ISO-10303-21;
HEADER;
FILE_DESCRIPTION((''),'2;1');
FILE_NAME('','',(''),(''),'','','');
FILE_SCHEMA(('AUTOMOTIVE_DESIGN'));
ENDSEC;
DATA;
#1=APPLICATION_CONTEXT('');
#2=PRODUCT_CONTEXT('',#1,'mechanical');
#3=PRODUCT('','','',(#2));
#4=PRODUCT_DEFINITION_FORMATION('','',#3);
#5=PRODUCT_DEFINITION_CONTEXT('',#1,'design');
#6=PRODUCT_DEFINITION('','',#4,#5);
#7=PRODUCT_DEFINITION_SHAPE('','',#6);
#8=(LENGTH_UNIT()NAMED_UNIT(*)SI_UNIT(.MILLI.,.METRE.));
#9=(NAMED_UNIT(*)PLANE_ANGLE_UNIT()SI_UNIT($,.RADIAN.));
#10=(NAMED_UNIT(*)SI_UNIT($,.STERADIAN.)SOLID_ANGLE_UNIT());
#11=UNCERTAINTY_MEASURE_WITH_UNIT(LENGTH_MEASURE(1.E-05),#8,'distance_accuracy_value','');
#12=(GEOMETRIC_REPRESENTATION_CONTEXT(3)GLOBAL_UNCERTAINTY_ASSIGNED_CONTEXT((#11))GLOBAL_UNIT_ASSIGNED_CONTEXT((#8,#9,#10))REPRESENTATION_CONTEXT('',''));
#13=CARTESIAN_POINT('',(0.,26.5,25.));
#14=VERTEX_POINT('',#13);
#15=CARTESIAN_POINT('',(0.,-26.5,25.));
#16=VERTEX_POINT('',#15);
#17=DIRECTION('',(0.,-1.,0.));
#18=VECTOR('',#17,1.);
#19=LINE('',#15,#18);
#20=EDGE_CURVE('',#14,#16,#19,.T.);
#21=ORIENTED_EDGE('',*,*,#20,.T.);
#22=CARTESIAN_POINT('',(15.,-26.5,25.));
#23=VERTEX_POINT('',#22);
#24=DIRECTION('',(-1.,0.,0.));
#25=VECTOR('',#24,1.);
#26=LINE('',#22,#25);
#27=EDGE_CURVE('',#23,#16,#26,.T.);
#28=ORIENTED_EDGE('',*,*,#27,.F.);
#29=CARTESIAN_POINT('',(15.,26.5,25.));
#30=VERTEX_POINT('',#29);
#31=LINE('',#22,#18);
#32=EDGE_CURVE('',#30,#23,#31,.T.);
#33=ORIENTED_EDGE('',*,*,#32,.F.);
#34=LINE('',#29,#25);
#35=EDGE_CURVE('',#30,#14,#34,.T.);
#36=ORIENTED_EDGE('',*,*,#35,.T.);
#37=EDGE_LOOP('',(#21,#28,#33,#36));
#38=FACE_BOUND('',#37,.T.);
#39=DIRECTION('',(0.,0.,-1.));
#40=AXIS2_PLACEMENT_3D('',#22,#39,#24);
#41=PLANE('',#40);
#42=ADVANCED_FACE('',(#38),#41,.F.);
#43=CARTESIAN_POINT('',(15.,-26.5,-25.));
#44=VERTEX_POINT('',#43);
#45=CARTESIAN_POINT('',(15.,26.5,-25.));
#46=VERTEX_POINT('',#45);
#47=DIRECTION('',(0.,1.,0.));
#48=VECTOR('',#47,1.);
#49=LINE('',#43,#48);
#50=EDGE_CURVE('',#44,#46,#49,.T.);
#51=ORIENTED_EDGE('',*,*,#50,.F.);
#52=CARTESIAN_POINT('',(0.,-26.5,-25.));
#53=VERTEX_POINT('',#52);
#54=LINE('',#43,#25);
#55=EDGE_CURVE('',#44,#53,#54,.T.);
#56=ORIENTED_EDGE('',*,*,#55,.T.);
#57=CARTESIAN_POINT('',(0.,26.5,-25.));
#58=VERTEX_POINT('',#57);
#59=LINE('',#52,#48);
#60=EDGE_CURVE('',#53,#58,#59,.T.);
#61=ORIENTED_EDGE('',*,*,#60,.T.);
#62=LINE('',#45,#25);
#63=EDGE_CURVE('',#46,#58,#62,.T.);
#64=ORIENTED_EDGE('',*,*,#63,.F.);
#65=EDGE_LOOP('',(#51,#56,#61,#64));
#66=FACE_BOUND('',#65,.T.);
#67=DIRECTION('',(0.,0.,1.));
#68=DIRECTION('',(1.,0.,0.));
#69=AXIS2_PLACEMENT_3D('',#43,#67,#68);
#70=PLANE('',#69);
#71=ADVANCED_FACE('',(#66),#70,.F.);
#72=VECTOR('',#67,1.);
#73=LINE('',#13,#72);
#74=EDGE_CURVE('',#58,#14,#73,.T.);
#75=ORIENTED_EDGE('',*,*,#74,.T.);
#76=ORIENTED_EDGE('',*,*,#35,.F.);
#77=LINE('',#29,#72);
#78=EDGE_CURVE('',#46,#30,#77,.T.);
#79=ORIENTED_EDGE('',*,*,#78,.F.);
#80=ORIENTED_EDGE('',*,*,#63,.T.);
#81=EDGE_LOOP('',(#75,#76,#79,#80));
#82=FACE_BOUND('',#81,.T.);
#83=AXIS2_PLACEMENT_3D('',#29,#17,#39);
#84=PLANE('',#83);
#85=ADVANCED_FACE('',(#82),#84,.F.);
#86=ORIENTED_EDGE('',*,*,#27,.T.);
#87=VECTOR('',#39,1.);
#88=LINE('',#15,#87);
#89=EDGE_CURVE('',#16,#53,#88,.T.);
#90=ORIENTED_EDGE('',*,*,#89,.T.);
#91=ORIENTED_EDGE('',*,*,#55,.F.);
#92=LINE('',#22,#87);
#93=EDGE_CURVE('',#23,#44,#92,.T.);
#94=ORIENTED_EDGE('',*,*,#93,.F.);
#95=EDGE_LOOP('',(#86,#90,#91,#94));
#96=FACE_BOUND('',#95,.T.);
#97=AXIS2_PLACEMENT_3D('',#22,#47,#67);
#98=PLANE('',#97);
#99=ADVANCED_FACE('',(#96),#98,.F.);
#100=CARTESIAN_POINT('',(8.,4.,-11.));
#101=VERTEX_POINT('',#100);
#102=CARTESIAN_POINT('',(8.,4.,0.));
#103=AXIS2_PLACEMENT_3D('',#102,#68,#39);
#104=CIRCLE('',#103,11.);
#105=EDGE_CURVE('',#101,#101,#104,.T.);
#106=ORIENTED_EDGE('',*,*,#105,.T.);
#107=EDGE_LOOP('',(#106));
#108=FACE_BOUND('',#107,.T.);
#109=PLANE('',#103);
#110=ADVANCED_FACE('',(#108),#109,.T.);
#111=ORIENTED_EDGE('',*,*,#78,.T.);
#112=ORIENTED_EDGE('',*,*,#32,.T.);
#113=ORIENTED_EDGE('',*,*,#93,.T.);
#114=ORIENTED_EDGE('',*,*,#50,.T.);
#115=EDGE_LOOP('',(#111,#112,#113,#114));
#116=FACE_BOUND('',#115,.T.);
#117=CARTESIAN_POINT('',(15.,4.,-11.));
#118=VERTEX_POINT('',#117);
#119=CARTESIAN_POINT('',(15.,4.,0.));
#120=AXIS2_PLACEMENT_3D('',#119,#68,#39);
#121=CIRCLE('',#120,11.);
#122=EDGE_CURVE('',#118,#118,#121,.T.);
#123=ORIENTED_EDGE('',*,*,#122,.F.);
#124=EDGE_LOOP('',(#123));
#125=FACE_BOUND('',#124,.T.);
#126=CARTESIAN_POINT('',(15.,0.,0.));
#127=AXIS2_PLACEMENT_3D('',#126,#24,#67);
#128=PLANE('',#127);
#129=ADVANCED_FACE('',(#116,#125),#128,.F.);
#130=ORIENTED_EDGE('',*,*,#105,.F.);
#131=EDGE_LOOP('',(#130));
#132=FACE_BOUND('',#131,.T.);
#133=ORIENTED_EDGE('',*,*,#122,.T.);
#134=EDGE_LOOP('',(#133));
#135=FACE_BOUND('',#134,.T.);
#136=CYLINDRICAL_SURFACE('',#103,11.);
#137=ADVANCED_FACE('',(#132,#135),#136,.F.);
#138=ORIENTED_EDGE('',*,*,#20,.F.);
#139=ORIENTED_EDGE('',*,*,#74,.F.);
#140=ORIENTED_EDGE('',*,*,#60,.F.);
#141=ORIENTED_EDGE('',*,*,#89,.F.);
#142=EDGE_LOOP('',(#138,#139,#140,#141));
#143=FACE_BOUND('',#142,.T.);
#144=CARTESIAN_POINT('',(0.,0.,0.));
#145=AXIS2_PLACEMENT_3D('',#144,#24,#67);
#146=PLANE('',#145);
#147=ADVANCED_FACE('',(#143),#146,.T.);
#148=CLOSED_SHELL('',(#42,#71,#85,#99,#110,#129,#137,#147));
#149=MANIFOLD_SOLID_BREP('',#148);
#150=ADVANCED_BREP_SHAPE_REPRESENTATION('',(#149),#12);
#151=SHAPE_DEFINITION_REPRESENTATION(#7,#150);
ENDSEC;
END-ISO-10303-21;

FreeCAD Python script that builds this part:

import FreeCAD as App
import Part
import Sketcher

doc = App.newDocument("Part")
params = doc.addObject("Spreadsheet::Sheet", "Params")
for row, (alias, value) in enumerate([
    ("sketch1_width", "53 mm"),
    ("sketch1_height", "50 mm"),
    ("pad1_length", "15 mm"),
    ("sketch2_diameter", "22 mm"),
    ("pocket1_length", "7 mm"),
], start=1):
    params.set(f"A{row}", alias)
    params.set(f"B{row}", "=" + value)
    params.setAlias(f"B{row}", alias)

body = doc.addObject("PartDesign::Body", "Body")

# Sketch on YZ plane
sketch1 = body.newObject("Sketcher::SketchObject", "Sketch")
sketch1.AttachmentSupport = (doc.getObject("YZ_Plane"), [""])
sketch1.MapMode = "FlatFace"
sketch1.addGeometry([
    Part.LineSegment(App.Vector(26, 25, 0), App.Vector(-26, 25, 0)),
    Part.LineSegment(App.Vector(-26, 25, 0), App.Vector(-26, -25, 0)),
    Part.LineSegment(App.Vector(-26, -25, 0), App.Vector(26, -25, 0)),
    Part.LineSegment(App.Vector(26, -25, 0), App.Vector(26, 25, 0)),
], False)
sketch1.addConstraint([
    Sketcher.Constraint("Coincident", 0, 2, 1, 1),
    Sketcher.Constraint("Coincident", 1, 2, 2, 1),
    Sketcher.Constraint("Coincident", 2, 2, 3, 1),
    Sketcher.Constraint("Coincident", 3, 2, 0, 1),
    Sketcher.Constraint("Horizontal", 0),
    Sketcher.Constraint("Vertical", 1),
    Sketcher.Constraint("Horizontal", 2),
    Sketcher.Constraint("Vertical", 3),
    Sketcher.Constraint("Symmetric", 0, 2, 2, 2, -1, 1),
    Sketcher.Constraint("DistanceX", 0, 2, 0, 1, 53.0),
    Sketcher.Constraint("DistanceY", 1, 2, 1, 1, 50.0),
])
sketch1.setExpression("Constraints[9]", "Params.sketch1_width")
sketch1.setExpression("Constraints[10]", "Params.sketch1_height")
pad1 = body.newObject("PartDesign::Pad", "Pad")
pad1.Profile = sketch1
pad1.setExpression("Length", "Params.pad1_length")

# Sketch on YZ plane
sketch2 = body.newObject("Sketcher::SketchObject", "Sketch001")
sketch2.AttachmentSupport = (doc.getObject("YZ_Plane"), [""])
sketch2.MapMode = "FlatFace"
sketch2.AttachmentOffset = App.Placement(App.Vector(0, 0, 15), App.Rotation())
sketch2.addGeometry(Part.Circle(App.Vector(4, 0, 0), App.Vector(0, 0, 1), 11), False)
sketch2.addConstraint([
    Sketcher.Constraint("PointOnObject", 0, 3, -1),
    Sketcher.Constraint("Diameter", 0, 22.0),
    Sketcher.Constraint("DistanceX", -1, 1, 0, 3, 4.0),
])
sketch2.setExpression("Constraints[1]", "Params.sketch2_diameter")
pocket1 = body.newObject("PartDesign::Pocket", "Pocket")
pocket1.Profile = sketch2
pocket1.setExpression("Length", "Params.pocket1_length")

doc.recompute()
